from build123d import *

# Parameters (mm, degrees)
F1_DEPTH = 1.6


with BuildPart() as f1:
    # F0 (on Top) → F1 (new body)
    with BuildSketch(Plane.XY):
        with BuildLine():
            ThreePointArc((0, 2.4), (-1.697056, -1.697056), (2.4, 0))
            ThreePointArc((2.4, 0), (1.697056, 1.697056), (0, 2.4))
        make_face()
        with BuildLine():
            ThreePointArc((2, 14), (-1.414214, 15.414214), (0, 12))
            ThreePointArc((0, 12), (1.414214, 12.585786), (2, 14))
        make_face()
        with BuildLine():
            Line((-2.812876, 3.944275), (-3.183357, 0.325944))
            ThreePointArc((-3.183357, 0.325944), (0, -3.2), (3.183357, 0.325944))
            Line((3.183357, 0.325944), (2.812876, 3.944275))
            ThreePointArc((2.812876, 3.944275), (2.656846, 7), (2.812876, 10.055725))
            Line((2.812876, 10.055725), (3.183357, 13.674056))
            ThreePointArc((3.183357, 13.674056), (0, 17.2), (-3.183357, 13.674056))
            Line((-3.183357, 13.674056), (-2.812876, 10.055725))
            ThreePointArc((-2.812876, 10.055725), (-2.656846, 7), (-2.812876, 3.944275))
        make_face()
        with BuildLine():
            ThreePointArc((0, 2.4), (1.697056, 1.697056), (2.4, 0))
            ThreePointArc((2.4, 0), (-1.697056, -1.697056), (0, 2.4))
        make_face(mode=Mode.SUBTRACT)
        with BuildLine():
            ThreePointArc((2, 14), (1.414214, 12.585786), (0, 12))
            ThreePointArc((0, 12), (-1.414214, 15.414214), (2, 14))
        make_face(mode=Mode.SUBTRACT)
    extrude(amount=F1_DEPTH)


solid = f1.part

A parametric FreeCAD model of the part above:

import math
import FreeCAD as App
import Part
import Sketcher
from FreeCAD import Vector
Q = App.Units.Quantity

doc = App.newDocument("Part")
body = doc.addObject("PartDesign::Body", "Body")

# Sketch on XY plane
sketch1 = doc.addObject("Sketcher::SketchObject", "Sketch")
body.addObject(sketch1)
sketch1.AttachmentSupport = (doc.XY_Plane, [""])
sketch1.MapMode = "FlatFace"
sketch1.addGeometry([
    Part.LineSegment(Vector(-2.8, 3.9, 0), Vector(-3.2, 0.3, 0)),  # 0
    Part.ArcOfCircle(Part.Circle(Vector(0, 0, 0), Vector(0, 0, 1), 3.2), math.radians(174), math.radians(366)),  # 1
    Part.LineSegment(Vector(3.2, 0.3, 0), Vector(2.8, 3.9, 0)),  # 2
    Part.ArcOfCircle(Part.Circle(Vector(32.7, 7, 0), Vector(0, 0, 1), 30), math.radians(174.15), math.radians(185.85)),  # 3
    Part.LineSegment(Vector(2.8, 10.1, 0), Vector(3.2, 13.7, 0)),  # 4
    Part.ArcOfCircle(Part.Circle(Vector(0, 14, 0), Vector(0, 0, 1), 3.2), math.radians(-6), math.radians(186)),  # 5
    Part.LineSegment(Vector(-3.2, 13.7, 0), Vector(-2.8, 10.1, 0)),  # 6
    Part.ArcOfCircle(Part.Circle(Vector(-32.7, 7, 0), Vector(0, 0, 1), 30), math.radians(-5.85), math.radians(5.85)),  # 7
    Part.ArcOfCircle(Part.Circle(Vector(0, 0, 0), Vector(0, 0, 1), 2.4), math.radians(90), math.radians(360)),  # 8
    Part.ArcOfCircle(Part.Circle(Vector(0, 0, 0), Vector(0, 0, 1), 2.4), math.radians(0), math.radians(90)),  # 9
    Part.ArcOfCircle(Part.Circle(Vector(0, 14, 0), Vector(0, 0, 1), 2), math.radians(0), math.radians(270)),  # 10
    Part.ArcOfCircle(Part.Circle(Vector(0, 14, 0), Vector(0, 0, 1), 2), math.radians(-90), math.radians(0)),  # 11
], False)
sketch1.addConstraint([
    Sketcher.Constraint("Tangent", 0, 2, 1, 1),
    Sketcher.Constraint("Tangent", 1, 2, 2, 1),
    Sketcher.Constraint("Tangent", 2, 2, 3, 2),
    Sketcher.Constraint("Tangent", 3, 1, 4, 1),
    Sketcher.Constraint("Tangent", 4, 2, 5, 1),
    Sketcher.Constraint("Tangent", 5, 2, 6, 1),
    Sketcher.Constraint("Tangent", 6, 2, 7, 2),
    Sketcher.Constraint("Tangent", 7, 1, 0, 1),
    Sketcher.Constraint("Tangent", 8, 1, 9, 2),
    Sketcher.Constraint("Coincident", 9, 1, 8, 2),
    Sketcher.Constraint("Tangent", 10, 1, 11, 2),
    Sketcher.Constraint("Coincident", 11, 1, 10, 2),
    Sketcher.Constraint("Coincident", 1, 3, -1, 1),
    Sketcher.Constraint("Coincident", 8, 3, -1, 1),
    Sketcher.Constraint("Coincident", 10, 3, 5, 3),
    Sketcher.Constraint("Equal", 1, 5),
    Sketcher.Constraint("Equal", 3, 7),
    Sketcher.Constraint("Symmetric", 3, 3, 7, 3, -2),
    Sketcher.Constraint("PointOnObject", 5, 3, -2),
    Sketcher.Constraint("PointOnObject", 8, 1, -2),
    Sketcher.Constraint("PointOnObject", 9, 1, -1),
    Sketcher.Constraint("PointOnObject", 11, 1, -2),
    Sketcher.Constraint("Parallel", 0, 4),
    Sketcher.Constraint("Horizontal", 11, 3, 10, 1),
    Sketcher.Constraint("Radius", 10, Q("2 mm")),
    Sketcher.Constraint("Radius", 1, Q("3.2 mm")),
    Sketcher.Constraint("Radius", 8, Q("2.4 mm")),
    Sketcher.Constraint("DistanceY", -1, 1, 3, 3, Q("7 mm")),
    Sketcher.Constraint("Radius", 3, Q("30.000002 mm")),
    Sketcher.Constraint("Distance", 0, Q("3.637248 mm")),
])
pad1 = doc.addObject("PartDesign::Pad", "Pad")
body.addObject(pad1)
pad1.Profile = sketch1
pad1.Length = 1.6

doc.recompute()
